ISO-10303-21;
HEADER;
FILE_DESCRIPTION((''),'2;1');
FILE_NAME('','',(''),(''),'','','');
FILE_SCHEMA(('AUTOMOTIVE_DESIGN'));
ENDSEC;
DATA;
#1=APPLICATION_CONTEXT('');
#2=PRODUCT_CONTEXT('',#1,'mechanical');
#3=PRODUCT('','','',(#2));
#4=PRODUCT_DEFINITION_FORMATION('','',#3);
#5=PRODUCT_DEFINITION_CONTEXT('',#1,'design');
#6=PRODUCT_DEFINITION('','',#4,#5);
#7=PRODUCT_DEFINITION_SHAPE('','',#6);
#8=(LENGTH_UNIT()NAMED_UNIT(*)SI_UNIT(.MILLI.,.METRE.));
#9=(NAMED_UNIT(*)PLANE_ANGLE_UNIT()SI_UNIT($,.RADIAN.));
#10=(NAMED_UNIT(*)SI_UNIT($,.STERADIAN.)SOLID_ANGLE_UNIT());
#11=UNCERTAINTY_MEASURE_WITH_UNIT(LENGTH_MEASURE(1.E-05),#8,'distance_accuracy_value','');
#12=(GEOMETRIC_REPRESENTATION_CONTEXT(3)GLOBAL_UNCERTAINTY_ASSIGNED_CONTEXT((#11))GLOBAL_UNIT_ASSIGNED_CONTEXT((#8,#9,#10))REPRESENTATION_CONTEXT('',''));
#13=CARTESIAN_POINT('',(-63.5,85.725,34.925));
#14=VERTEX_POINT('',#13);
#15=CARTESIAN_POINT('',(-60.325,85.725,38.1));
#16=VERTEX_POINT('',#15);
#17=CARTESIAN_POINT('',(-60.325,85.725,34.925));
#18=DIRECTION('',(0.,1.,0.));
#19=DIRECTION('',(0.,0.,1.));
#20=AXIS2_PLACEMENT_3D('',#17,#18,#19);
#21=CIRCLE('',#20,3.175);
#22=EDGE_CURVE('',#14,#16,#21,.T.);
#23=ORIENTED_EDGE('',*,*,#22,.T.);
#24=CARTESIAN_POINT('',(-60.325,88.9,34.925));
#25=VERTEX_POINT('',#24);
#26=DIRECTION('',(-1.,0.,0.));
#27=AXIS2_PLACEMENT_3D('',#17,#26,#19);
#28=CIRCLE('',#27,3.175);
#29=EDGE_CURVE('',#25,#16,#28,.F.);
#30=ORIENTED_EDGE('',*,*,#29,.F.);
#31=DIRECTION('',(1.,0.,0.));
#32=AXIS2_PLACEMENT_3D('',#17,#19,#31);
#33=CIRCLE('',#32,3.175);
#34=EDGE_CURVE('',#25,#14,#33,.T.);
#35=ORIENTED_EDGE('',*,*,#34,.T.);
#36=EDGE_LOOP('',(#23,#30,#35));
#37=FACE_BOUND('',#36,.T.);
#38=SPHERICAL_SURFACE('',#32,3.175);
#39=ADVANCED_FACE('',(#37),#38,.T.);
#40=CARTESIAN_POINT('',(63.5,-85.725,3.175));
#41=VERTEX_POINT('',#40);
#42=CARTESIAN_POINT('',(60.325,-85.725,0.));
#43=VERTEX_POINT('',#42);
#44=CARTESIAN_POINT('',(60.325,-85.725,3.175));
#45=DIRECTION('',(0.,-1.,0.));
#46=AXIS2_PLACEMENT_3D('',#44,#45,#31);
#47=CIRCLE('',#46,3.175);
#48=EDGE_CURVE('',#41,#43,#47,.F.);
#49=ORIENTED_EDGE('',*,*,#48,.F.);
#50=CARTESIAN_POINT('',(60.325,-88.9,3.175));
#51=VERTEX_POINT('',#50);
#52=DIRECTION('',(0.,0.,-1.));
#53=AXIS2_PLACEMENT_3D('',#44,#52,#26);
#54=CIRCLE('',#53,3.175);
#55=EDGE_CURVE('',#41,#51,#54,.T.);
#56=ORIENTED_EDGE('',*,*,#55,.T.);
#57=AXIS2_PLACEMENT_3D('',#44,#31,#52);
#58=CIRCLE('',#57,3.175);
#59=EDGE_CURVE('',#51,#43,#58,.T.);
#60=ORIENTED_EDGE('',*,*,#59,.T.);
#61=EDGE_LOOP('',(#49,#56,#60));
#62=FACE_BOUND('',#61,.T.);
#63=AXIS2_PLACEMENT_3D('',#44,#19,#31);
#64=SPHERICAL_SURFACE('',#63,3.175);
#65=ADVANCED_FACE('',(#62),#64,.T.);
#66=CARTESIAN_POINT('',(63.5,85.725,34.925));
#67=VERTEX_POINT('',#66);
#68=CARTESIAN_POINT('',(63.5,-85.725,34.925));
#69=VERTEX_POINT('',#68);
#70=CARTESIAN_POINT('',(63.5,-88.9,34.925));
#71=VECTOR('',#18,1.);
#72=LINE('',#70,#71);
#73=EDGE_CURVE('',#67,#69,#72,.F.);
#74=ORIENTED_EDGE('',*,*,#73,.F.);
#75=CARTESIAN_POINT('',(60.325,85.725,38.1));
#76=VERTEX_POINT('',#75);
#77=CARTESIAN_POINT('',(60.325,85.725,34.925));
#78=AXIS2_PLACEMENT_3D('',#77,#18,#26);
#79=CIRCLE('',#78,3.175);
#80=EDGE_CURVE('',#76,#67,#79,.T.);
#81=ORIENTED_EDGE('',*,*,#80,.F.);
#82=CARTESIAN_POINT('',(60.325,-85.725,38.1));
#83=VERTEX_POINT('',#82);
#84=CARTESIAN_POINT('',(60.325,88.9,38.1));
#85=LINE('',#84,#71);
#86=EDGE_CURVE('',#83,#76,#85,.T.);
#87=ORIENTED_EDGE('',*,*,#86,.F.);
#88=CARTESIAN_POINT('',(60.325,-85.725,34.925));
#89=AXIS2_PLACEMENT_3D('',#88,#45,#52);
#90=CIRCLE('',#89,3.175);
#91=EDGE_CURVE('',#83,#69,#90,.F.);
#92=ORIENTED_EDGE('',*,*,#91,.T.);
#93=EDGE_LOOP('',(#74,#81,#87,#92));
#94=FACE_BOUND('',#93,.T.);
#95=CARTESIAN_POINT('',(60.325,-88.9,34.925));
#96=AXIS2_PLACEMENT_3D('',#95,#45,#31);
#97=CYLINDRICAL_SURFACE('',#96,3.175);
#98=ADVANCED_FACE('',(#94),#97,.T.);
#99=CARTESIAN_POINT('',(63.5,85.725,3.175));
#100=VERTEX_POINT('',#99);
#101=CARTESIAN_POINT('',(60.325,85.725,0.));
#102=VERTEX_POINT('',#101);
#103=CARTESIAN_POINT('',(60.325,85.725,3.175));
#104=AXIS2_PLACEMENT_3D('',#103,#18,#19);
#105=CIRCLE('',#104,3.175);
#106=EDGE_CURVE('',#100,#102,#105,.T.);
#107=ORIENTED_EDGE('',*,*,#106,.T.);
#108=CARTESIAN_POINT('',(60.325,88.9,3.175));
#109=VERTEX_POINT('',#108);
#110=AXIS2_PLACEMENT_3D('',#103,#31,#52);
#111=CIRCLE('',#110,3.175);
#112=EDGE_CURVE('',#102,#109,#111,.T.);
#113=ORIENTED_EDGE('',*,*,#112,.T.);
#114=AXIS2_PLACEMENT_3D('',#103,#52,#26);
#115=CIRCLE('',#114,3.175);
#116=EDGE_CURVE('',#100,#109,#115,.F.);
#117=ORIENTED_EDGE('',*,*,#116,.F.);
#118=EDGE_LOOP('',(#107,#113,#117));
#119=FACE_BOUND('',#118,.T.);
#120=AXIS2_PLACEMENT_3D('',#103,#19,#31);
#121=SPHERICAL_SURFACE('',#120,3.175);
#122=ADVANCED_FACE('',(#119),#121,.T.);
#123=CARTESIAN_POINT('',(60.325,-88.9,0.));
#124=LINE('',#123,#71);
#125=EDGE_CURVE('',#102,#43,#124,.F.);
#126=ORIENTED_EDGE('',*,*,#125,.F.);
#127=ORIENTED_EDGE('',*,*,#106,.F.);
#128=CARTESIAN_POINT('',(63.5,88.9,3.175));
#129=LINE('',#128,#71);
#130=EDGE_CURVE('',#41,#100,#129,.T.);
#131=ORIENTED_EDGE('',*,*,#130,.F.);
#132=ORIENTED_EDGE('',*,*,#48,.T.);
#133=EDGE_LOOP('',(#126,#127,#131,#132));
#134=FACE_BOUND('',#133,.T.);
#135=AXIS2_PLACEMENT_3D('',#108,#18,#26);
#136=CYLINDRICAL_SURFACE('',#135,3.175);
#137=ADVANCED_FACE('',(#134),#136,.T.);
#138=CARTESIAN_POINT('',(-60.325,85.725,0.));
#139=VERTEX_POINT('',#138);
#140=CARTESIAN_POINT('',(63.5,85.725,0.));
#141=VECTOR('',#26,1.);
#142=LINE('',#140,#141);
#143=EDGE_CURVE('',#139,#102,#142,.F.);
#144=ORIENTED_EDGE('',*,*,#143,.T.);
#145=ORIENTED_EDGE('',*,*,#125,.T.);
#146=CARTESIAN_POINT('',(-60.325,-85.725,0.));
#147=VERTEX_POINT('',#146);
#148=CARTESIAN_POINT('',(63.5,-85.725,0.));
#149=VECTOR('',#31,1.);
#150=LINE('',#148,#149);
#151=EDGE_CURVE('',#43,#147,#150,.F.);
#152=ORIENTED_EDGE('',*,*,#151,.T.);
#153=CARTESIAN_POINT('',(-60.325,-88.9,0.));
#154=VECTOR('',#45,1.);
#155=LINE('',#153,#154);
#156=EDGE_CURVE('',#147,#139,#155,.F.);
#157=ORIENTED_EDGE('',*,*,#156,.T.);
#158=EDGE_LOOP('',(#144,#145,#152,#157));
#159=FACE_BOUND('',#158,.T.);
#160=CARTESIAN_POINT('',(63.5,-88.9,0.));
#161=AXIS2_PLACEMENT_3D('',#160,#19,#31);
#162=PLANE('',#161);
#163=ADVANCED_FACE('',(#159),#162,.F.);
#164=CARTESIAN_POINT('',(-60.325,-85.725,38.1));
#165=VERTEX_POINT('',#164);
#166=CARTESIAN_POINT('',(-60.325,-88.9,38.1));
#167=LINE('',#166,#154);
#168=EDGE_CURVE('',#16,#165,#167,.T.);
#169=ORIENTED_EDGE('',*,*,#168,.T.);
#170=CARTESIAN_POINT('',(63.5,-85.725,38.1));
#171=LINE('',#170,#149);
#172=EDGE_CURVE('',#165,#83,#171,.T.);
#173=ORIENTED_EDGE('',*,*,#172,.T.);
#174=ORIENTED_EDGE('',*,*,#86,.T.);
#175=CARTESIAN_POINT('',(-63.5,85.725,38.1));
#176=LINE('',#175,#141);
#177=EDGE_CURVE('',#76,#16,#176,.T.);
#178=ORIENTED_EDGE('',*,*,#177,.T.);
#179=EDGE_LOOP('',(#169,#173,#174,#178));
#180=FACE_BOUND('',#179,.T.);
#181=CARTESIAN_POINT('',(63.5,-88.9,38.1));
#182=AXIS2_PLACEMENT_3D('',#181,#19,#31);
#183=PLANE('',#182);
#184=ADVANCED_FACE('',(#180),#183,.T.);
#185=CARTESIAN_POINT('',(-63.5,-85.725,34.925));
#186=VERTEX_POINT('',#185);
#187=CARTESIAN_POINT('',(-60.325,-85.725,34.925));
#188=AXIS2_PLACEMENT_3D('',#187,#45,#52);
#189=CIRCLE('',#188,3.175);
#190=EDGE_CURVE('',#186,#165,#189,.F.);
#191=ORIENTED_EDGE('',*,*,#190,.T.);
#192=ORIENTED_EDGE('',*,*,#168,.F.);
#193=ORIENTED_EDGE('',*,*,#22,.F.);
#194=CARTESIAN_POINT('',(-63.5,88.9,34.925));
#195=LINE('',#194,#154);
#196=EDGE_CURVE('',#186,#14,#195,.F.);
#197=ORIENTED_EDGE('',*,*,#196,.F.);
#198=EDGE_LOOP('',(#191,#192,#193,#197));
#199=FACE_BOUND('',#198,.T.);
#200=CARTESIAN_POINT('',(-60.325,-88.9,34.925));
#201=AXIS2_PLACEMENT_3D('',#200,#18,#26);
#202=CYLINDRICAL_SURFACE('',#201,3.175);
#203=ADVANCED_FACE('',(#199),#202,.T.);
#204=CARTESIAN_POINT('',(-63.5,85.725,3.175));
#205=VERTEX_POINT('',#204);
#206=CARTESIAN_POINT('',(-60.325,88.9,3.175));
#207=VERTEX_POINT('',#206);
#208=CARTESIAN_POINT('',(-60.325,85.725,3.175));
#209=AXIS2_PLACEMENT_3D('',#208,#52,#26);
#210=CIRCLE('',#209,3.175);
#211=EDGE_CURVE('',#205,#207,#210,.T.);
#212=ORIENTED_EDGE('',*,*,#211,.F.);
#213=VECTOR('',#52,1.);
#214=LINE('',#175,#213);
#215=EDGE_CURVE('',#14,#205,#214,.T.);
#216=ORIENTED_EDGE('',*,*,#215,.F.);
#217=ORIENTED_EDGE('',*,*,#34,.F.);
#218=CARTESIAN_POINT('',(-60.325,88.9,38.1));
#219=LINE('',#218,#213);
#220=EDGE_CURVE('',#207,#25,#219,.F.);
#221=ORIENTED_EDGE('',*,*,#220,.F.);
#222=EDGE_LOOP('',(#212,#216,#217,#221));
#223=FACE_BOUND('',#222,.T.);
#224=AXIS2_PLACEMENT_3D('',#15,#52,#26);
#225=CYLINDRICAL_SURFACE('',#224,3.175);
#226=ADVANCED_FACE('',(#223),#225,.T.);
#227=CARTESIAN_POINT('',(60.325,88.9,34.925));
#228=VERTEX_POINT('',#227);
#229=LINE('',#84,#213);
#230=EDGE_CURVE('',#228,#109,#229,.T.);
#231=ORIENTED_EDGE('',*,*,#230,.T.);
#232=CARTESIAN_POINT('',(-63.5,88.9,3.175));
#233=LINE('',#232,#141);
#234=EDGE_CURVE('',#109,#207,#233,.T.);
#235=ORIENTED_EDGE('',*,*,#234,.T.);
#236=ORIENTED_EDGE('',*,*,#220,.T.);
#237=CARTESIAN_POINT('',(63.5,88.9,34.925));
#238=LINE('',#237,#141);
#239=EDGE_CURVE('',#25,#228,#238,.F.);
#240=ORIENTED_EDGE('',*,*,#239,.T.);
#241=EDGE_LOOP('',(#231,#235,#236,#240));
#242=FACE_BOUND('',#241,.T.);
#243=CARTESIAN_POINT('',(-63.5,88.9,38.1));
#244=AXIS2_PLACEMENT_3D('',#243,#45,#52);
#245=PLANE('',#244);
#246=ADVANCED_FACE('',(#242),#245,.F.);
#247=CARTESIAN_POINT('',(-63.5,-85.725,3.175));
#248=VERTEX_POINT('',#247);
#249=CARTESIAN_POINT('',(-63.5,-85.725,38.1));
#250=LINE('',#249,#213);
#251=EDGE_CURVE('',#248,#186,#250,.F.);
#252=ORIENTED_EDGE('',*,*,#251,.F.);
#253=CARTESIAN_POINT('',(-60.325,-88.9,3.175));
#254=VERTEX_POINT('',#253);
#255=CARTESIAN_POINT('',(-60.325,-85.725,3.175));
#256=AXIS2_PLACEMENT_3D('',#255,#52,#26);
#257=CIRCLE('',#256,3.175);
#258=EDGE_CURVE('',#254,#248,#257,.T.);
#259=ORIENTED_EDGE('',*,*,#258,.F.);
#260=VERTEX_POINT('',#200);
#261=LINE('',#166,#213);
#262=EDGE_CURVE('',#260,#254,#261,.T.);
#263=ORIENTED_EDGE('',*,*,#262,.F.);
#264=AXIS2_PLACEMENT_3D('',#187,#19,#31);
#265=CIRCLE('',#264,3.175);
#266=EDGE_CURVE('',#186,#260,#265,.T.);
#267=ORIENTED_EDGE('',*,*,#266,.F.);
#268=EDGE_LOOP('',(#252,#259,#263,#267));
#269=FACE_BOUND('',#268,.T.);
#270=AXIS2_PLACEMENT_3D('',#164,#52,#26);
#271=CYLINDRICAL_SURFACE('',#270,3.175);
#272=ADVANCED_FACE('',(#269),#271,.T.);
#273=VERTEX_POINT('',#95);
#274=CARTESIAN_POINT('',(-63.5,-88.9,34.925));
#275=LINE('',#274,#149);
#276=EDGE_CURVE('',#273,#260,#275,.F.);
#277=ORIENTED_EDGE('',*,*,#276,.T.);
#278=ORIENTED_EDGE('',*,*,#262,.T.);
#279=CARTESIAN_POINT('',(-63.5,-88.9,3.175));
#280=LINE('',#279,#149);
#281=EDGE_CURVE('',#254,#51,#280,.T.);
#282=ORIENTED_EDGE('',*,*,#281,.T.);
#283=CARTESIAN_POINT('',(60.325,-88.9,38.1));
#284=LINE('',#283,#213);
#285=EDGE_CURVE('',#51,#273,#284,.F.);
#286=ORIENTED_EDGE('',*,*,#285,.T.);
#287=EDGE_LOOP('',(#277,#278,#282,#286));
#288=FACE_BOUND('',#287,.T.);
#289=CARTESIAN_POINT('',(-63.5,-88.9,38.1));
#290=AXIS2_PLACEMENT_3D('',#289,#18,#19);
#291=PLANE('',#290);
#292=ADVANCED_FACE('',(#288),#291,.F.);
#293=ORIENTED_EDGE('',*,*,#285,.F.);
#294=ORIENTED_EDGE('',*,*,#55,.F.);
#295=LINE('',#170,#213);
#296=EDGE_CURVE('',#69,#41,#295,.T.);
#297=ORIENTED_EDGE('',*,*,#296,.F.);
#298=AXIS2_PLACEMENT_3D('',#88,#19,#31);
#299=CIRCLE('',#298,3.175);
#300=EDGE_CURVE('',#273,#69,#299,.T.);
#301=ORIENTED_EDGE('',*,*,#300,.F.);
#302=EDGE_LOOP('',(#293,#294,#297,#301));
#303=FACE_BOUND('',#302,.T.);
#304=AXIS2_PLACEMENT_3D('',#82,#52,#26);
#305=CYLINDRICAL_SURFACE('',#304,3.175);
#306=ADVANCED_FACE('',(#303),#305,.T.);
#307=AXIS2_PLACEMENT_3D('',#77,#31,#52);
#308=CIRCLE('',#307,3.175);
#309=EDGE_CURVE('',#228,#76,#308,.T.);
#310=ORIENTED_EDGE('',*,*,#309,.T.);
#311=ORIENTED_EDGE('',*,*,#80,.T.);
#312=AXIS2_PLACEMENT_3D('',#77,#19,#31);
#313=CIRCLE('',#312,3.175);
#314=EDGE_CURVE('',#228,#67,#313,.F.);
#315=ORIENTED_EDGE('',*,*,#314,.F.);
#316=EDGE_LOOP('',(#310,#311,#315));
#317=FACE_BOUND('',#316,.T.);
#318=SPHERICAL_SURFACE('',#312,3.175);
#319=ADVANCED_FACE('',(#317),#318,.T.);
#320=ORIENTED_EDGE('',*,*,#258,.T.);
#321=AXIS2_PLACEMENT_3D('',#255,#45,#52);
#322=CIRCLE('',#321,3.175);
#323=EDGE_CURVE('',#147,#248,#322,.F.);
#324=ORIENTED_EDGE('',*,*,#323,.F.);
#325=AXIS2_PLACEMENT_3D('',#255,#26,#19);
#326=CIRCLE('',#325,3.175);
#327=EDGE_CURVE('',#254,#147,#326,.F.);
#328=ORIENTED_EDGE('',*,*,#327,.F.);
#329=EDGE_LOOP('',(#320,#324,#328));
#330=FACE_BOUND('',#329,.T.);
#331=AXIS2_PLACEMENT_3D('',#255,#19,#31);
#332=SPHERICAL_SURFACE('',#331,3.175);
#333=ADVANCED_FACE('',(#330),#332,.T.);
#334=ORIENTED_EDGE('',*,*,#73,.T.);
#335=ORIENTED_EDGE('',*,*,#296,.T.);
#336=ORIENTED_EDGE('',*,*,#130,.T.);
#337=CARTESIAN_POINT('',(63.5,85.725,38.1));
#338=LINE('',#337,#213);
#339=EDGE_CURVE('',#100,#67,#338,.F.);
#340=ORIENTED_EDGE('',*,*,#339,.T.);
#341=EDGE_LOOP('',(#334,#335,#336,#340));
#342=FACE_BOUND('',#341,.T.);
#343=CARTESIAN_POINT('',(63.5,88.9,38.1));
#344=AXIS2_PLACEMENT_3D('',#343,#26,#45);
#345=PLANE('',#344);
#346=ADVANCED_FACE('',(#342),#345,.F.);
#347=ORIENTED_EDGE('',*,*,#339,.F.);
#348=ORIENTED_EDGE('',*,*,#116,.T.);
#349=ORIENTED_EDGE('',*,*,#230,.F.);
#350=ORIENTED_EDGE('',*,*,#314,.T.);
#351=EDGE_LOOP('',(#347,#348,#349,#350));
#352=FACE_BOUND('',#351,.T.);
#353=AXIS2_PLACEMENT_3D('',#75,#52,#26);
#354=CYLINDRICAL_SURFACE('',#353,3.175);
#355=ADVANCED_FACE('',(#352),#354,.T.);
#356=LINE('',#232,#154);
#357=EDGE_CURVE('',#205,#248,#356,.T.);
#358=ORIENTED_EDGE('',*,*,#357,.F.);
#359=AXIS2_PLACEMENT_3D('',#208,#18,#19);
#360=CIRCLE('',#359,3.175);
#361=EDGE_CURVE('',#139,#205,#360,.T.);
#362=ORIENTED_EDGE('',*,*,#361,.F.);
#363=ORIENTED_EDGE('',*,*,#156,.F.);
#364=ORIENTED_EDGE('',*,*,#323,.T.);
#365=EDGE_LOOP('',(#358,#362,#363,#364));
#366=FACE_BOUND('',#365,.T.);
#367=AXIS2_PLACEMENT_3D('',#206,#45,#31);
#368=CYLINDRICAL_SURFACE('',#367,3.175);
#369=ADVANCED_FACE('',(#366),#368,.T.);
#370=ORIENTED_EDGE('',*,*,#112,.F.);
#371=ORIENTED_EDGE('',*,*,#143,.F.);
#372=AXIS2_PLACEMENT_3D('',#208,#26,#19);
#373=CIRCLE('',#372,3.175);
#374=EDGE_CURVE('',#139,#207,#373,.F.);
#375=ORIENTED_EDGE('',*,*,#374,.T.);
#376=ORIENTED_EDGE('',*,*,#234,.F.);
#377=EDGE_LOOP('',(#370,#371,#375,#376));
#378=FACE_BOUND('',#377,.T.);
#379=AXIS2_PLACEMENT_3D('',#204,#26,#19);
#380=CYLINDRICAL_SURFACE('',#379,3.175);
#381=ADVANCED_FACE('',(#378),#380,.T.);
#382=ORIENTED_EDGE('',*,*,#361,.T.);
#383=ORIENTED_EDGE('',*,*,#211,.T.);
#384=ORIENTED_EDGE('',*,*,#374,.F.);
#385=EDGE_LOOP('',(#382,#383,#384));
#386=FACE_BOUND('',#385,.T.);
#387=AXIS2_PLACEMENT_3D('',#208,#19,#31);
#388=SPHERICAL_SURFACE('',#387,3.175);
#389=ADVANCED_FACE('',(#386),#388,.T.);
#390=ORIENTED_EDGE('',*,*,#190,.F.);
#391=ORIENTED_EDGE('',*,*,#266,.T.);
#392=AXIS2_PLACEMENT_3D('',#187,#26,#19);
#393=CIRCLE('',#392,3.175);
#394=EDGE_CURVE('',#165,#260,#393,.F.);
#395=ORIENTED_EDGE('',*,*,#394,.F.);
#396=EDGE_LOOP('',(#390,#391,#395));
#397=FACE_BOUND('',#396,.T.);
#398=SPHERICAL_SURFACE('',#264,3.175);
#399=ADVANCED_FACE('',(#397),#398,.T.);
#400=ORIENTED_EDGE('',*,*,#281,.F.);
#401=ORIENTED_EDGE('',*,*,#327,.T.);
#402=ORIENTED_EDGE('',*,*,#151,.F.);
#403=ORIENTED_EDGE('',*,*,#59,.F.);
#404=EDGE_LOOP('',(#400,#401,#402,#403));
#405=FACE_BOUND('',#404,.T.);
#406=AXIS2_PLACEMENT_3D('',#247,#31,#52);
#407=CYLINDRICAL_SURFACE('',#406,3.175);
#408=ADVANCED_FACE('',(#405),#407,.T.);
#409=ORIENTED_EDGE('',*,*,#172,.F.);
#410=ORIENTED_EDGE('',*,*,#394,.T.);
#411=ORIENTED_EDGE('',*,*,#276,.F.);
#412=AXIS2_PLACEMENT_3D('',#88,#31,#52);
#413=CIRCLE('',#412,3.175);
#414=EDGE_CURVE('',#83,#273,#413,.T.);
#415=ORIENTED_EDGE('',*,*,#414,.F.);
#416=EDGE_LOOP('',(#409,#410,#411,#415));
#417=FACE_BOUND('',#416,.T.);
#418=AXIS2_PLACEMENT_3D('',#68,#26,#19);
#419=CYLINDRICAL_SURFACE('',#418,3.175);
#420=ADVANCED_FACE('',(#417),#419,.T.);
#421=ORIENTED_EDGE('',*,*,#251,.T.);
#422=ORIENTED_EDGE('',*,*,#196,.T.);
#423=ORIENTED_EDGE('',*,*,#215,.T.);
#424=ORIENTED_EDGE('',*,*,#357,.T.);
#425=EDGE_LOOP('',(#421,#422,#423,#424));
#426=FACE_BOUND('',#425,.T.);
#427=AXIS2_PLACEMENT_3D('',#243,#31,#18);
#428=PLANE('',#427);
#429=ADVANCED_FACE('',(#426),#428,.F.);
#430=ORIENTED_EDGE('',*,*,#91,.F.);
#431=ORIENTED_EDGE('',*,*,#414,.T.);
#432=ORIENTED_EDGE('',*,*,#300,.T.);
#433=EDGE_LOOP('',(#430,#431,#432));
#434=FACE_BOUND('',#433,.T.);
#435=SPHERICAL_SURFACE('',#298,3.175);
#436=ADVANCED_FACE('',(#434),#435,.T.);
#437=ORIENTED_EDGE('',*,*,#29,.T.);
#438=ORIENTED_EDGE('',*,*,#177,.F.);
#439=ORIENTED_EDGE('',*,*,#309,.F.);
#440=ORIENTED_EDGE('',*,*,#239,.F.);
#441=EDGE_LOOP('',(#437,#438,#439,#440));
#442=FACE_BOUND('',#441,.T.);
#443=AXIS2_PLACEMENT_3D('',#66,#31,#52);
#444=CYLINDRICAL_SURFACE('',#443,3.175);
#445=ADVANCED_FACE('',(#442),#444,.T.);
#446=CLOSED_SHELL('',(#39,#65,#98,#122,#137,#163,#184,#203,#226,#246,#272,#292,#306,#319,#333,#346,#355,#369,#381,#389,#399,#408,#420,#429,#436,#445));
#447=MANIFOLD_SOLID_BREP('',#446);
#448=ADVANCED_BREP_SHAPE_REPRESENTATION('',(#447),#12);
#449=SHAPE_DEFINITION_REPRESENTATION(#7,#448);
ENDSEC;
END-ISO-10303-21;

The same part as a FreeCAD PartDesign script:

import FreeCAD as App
import Part
import Sketcher

V = App.Vector
Q = App.Units.Quantity

doc = App.newDocument("Part")
params = doc.addObject("Spreadsheet::Sheet", "Params")
for row, (alias, value) in enumerate([
    ("sketch1_width", "5 in"),
    ("sketch1_height", "7 in"),
    ("pad1_length", "1.5 in"),
    ("fillet_radius", "0.125 in"),
], start=1):
    params.set(f"A{row}", alias)
    params.set(f"B{row}", "=" + value)
    params.setAlias(f"B{row}", alias)

body = doc.addObject("PartDesign::Body", "Body")

sketch1 = body.newObject("Sketcher::SketchObject", "Sketch")
sketch1.AttachmentSupport = (doc.getObject("XY_Plane"), [""])
sketch1.MapMode = "FlatFace"
sketch1.addGeometry(Part.LineSegment(V(-64, 89, 0), V(-64, -89, 0)), False)
sketch1.addGeometry(Part.LineSegment(V(-64, -89, 0), V(64, -89, 0)), False)
sketch1.addGeometry(Part.LineSegment(V(64, -89, 0), V(64, 89, 0)), False)
sketch1.addGeometry(Part.LineSegment(V(64, 89, 0), V(-64, 89, 0)), False)
sketch1.addConstraint(Sketcher.Constraint("Coincident", 0, 2, 1, 1))
sketch1.addConstraint(Sketcher.Constraint("Coincident", 1, 2, 2, 1))
sketch1.addConstraint(Sketcher.Constraint("Coincident", 2, 2, 3, 1))
sketch1.addConstraint(Sketcher.Constraint("Coincident", 3, 2, 0, 1))
sketch1.addConstraint(Sketcher.Constraint("Vertical", 0))
sketch1.addConstraint(Sketcher.Constraint("Horizontal", 1))
sketch1.addConstraint(Sketcher.Constraint("Vertical", 2))
sketch1.addConstraint(Sketcher.Constraint("Horizontal", 3))
sketch1.addConstraint(Sketcher.Constraint("Symmetric", 0, 2, 2, 2, -1, 1))
sketch1.addConstraint(Sketcher.Constraint("DistanceX", 1, 1, 1, 2, Q("5 in")))
sketch1.addConstraint(Sketcher.Constraint("DistanceY", 0, 2, 0, 1, Q("7 in")))
sketch1.setExpression("Constraints[9]", "Params.sketch1_width")
sketch1.setExpression("Constraints[10]", "Params.sketch1_height")
pad1 = body.newObject("PartDesign::Pad", "Pad")
pad1.Profile = sketch1
pad1.setExpression("Length", "Params.pad1_length")
doc.recompute()

fillet = body.newObject("PartDesign::Fillet", "Fillet")
fillet.Base = (pad1, ["Edge1"])
fillet.UseAllEdges = True
fillet.setExpression("Radius", "Params.fillet_radius")

doc.recompute()
